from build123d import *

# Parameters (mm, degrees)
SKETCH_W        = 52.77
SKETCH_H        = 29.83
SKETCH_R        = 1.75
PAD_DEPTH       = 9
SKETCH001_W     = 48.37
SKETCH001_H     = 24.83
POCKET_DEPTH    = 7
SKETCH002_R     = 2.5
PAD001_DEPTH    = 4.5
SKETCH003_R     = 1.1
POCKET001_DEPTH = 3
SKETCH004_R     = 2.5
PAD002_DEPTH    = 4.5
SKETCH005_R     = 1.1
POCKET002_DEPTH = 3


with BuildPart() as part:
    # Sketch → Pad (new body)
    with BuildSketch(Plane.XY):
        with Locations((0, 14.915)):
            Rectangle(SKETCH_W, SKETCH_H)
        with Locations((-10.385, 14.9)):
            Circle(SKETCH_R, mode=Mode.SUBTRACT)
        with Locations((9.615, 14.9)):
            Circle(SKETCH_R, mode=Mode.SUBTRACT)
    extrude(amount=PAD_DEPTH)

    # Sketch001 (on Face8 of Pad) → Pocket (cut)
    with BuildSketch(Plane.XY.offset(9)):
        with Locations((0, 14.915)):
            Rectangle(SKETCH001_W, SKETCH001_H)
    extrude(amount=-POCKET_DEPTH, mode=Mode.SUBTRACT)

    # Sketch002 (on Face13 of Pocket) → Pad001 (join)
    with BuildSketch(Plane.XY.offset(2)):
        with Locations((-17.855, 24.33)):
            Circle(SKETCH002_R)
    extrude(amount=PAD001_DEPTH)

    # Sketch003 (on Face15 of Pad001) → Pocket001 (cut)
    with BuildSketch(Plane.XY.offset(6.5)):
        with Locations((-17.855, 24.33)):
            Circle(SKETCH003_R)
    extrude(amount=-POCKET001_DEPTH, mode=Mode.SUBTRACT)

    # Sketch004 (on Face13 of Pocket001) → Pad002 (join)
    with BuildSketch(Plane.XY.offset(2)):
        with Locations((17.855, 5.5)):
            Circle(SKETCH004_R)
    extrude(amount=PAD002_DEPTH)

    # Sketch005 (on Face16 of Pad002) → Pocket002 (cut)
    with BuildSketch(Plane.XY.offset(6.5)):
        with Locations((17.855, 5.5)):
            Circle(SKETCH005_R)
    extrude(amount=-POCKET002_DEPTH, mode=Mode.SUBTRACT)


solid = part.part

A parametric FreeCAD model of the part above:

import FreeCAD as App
import Part
import Sketcher
Q = App.Units.Quantity

doc = App.newDocument("Part")
params = doc.addObject("Spreadsheet::Sheet", "Params")
for row, (alias, value) in enumerate([
    ("sketch1_diameter", "3.5 mm"),
    ("sketch1_width", "52.77 mm"),
    ("sketch1_height", "29.83 mm"),
    ("pad1_length", "9 mm"),
    ("sketch2_width", "48.37 mm"),
    ("sketch2_height", "24.83 mm"),
    ("pocket1_length", "7 mm"),
    ("sketch3_diameter", "5 mm"),
    ("pad2_length", "4.5 mm"),
    ("sketch4_diameter", "2.2 mm"),
    ("pocket2_length", "3 mm"),
    ("sketch5_diameter", "5 mm"),
    ("pad3_length", "4.5 mm"),
    ("sketch6_diameter", "2.2 mm"),
    ("pocket3_length", "3 mm"),
], start=1):
    params.set(f"A{row}", alias)
    params.set(f"B{row}", "=" + value)
    params.setAlias(f"B{row}", alias)

body = doc.addObject("PartDesign::Body", "Body")

# Sketch on XY plane
sketch1 = doc.addObject("Sketcher::SketchObject", "Sketch")
body.addObject(sketch1)
sketch1.AttachmentSupport = (doc.XY_Plane, [""])
sketch1.MapMode = "FlatFace"
sketch1.addGeometry([
    Part.LineSegment(App.Vector(-26.385, 29.83, 0), App.Vector(-26.385, 0, 0)),  # 0
    Part.LineSegment(App.Vector(-26.385, 0, 0), App.Vector(26.385, 0, 0)),  # 1
    Part.LineSegment(App.Vector(26.385, 0, 0), App.Vector(26.385, 29.83, 0)),  # 2
    Part.LineSegment(App.Vector(26.385, 29.83, 0), App.Vector(-26.385, 29.83, 0)),  # 3
    Part.Circle(App.Vector(-10.385, 14.9, 0), App.Vector(0, 0, 1), 1.75),  # 4
    Part.Circle(App.Vector(9.615, 14.9, 0), App.Vector(0, 0, 1), 1.75),  # 5
], False)
sketch1.addConstraint([
    Sketcher.Constraint("Coincident", 0, 2, 1, 1),
    Sketcher.Constraint("Coincident", 1, 2, 2, 1),
    Sketcher.Constraint("Coincident", 2, 2, 3, 1),
    Sketcher.Constraint("Coincident", 3, 2, 0, 1),
    Sketcher.Constraint("Vertical", 0),
    Sketcher.Constraint("Horizontal", 1),
    Sketcher.Constraint("Vertical", 2),
    Sketcher.Constraint("Horizontal", 3),
    Sketcher.Constraint("Equal", 4, 5),
    Sketcher.Constraint("Symmetric", 0, 2, 1, 2, -1, 1),
    Sketcher.Constraint("Horizontal", 4, 3, 5, 3),
    Sketcher.Constraint("Diameter", 4, Q("3.5 mm")),
    Sketcher.Constraint("DistanceX", 4, 3, 5, 3, Q("20 mm")),
    Sketcher.Constraint("DistanceX", 0, 2, 4, 3, Q("16 mm")),
    Sketcher.Constraint("DistanceX", 1, 1, 1, 2, Q("52.77 mm")),
    Sketcher.Constraint("DistanceY", 0, 2, 0, 1, Q("29.83 mm")),
    Sketcher.Constraint("DistanceY", -1, 1, 4, 3, Q("14.9 mm")),
])
sketch1.setExpression("Constraints[11]", "Params.sketch1_diameter")
sketch1.setExpression("Constraints[14]", "Params.sketch1_width")
sketch1.setExpression("Constraints[15]", "Params.sketch1_height")
pad1 = doc.addObject("PartDesign::Pad", "Pad")
body.addObject(pad1)
pad1.Profile = sketch1
pad1.setExpression("Length", "Params.pad1_length")

# Sketch on XY plane
sketch2 = doc.addObject("Sketcher::SketchObject", "Sketch001")
body.addObject(sketch2)
sketch2.AttachmentSupport = (doc.XY_Plane, [""])
sketch2.MapMode = "FlatFace"
sketch2.AttachmentOffset = App.Placement(App.Vector(0, 0, 9), App.Rotation())
sketch2.addGeometry([
    Part.LineSegment(App.Vector(-24.185, 27.33, 0), App.Vector(-24.185, 2.5, 0)),
    Part.LineSegment(App.Vector(-24.185, 2.5, 0), App.Vector(24.185, 2.5, 0)),
    Part.LineSegment(App.Vector(24.185, 2.5, 0), App.Vector(24.185, 27.33, 0)),
    Part.LineSegment(App.Vector(24.185, 27.33, 0), App.Vector(-24.185, 27.33, 0)),
], False)
sketch2.addConstraint([
    Sketcher.Constraint("Coincident", 0, 2, 1, 1),
    Sketcher.Constraint("Coincident", 1, 2, 2, 1),
    Sketcher.Constraint("Coincident", 2, 2, 3, 1),
    Sketcher.Constraint("Coincident", 3, 2, 0, 1),
    Sketcher.Constraint("Vertical", 0),
    Sketcher.Constraint("Horizontal", 1),
    Sketcher.Constraint("Vertical", 2),
    Sketcher.Constraint("Horizontal", 3),
    Sketcher.Constraint("DistanceX", 1, 1, 1, 2, Q("48.37 mm")),
    Sketcher.Constraint("DistanceY", 0, 2, 0, 1, Q("24.83 mm")),
    Sketcher.Constraint("DistanceY", -1, 1, 0, 2, Q("2.5 mm")),
    Sketcher.Constraint("DistanceX", 0, 2, -1, 1, Q("24.185 mm")),
])
sketch2.setExpression("Constraints[8]", "Params.sketch2_width")
sketch2.setExpression("Constraints[9]", "Params.sketch2_height")
pocket1 = doc.addObject("PartDesign::Pocket", "Pocket")
body.addObject(pocket1)
pocket1.Profile = sketch2
pocket1.setExpression("Length", "Params.pocket1_length")

# Sketch on XY plane
sketch3 = doc.addObject("Sketcher::SketchObject", "Sketch002")
body.addObject(sketch3)
sketch3.AttachmentSupport = (doc.XY_Plane, [""])
sketch3.MapMode = "FlatFace"
sketch3.AttachmentOffset = App.Placement(App.Vector(0, 0, 2), App.Rotation())
sketch3.addGeometry(Part.Circle(App.Vector(-17.855, 24.33, 0), App.Vector(0, 0, 1), 2.5), False)
sketch3.addConstraint([
    Sketcher.Constraint("Diameter", 0, Q("5 mm")),
    Sketcher.Constraint("DistanceY", -1, 1, 0, 3, Q("24.33 mm")),
    Sketcher.Constraint("DistanceX", 0, 3, -1, 1, Q("17.855 mm")),
])
sketch3.setExpression("Constraints[0]", "Params.sketch3_diameter")
pad2 = doc.addObject("PartDesign::Pad", "Pad001")
body.addObject(pad2)
pad2.Profile = sketch3
pad2.setExpression("Length", "Params.pad2_length")

# Sketch on XY plane
sketch4 = doc.addObject("Sketcher::SketchObject", "Sketch003")
body.addObject(sketch4)
sketch4.AttachmentSupport = (doc.XY_Plane, [""])
sketch4.MapMode = "FlatFace"
sketch4.AttachmentOffset = App.Placement(App.Vector(0, 0, 6.5), App.Rotation())
sketch4.addGeometry(Part.Circle(App.Vector(-17.855, 24.33, 0), App.Vector(0, 0, 1), 1.1), False)
sketch4.addConstraint([
    Sketcher.Constraint("Diameter", 0, Q("2.2 mm")),
    Sketcher.Constraint("DistanceY", -1, 1, 0, 3, Q("24.33 mm")),
    Sketcher.Constraint("DistanceX", 0, 3, -1, 1, Q("17.855 mm")),
])
sketch4.setExpression("Constraints[0]", "Params.sketch4_diameter")
pocket2 = doc.addObject("PartDesign::Pocket", "Pocket001")
body.addObject(pocket2)
pocket2.Profile = sketch4
pocket2.setExpression("Length", "Params.pocket2_length")

# Sketch on XY plane
sketch5 = doc.addObject("Sketcher::SketchObject", "Sketch004")
body.addObject(sketch5)
sketch5.AttachmentSupport = (doc.XY_Plane, [""])
sketch5.MapMode = "FlatFace"
sketch5.AttachmentOffset = App.Placement(App.Vector(0, 0, 2), App.Rotation())
sketch5.addGeometry(Part.Circle(App.Vector(17.855, 5.5, 0), App.Vector(0, 0, 1), 2.5), False)
sketch5.addConstraint([
    Sketcher.Constraint("Diameter", 0, Q("5 mm")),
    Sketcher.Constraint("DistanceY", -1, 1, 0, 3, Q("5.5 mm")),
    Sketcher.Constraint("DistanceX", -1, 1, 0, 3, Q("17.855 mm")),
])
sketch5.setExpression("Constraints[0]", "Params.sketch5_diameter")
pad3 = doc.addObject("PartDesign::Pad", "Pad002")
body.addObject(pad3)
pad3.Profile = sketch5
pad3.setExpression("Length", "Params.pad3_length")

# Sketch on XY plane
sketch6 = doc.addObject("Sketcher::SketchObject", "Sketch005")
body.addObject(sketch6)
sketch6.AttachmentSupport = (doc.XY_Plane, [""])
sketch6.MapMode = "FlatFace"
sketch6.AttachmentOffset = App.Placement(App.Vector(0, 0, 6.5), App.Rotation())
sketch6.addGeometry(Part.Circle(App.Vector(17.855, 5.5, 0), App.Vector(0, 0, 1), 1.1), False)
sketch6.addConstraint([
    Sketcher.Constraint("Diameter", 0, Q("2.2 mm")),
    Sketcher.Constraint("DistanceY", -1, 1, 0, 3, Q("5.5 mm")),
    Sketcher.Constraint("DistanceX", -1, 1, 0, 3, Q("17.855 mm")),
])
sketch6.setExpression("Constraints[0]", "Params.sketch6_diameter")
pocket3 = doc.addObject("PartDesign::Pocket", "Pocket002")
body.addObject(pocket3)
pocket3.Profile = sketch6
pocket3.setExpression("Length", "Params.pocket3_length")

doc.recompute()
